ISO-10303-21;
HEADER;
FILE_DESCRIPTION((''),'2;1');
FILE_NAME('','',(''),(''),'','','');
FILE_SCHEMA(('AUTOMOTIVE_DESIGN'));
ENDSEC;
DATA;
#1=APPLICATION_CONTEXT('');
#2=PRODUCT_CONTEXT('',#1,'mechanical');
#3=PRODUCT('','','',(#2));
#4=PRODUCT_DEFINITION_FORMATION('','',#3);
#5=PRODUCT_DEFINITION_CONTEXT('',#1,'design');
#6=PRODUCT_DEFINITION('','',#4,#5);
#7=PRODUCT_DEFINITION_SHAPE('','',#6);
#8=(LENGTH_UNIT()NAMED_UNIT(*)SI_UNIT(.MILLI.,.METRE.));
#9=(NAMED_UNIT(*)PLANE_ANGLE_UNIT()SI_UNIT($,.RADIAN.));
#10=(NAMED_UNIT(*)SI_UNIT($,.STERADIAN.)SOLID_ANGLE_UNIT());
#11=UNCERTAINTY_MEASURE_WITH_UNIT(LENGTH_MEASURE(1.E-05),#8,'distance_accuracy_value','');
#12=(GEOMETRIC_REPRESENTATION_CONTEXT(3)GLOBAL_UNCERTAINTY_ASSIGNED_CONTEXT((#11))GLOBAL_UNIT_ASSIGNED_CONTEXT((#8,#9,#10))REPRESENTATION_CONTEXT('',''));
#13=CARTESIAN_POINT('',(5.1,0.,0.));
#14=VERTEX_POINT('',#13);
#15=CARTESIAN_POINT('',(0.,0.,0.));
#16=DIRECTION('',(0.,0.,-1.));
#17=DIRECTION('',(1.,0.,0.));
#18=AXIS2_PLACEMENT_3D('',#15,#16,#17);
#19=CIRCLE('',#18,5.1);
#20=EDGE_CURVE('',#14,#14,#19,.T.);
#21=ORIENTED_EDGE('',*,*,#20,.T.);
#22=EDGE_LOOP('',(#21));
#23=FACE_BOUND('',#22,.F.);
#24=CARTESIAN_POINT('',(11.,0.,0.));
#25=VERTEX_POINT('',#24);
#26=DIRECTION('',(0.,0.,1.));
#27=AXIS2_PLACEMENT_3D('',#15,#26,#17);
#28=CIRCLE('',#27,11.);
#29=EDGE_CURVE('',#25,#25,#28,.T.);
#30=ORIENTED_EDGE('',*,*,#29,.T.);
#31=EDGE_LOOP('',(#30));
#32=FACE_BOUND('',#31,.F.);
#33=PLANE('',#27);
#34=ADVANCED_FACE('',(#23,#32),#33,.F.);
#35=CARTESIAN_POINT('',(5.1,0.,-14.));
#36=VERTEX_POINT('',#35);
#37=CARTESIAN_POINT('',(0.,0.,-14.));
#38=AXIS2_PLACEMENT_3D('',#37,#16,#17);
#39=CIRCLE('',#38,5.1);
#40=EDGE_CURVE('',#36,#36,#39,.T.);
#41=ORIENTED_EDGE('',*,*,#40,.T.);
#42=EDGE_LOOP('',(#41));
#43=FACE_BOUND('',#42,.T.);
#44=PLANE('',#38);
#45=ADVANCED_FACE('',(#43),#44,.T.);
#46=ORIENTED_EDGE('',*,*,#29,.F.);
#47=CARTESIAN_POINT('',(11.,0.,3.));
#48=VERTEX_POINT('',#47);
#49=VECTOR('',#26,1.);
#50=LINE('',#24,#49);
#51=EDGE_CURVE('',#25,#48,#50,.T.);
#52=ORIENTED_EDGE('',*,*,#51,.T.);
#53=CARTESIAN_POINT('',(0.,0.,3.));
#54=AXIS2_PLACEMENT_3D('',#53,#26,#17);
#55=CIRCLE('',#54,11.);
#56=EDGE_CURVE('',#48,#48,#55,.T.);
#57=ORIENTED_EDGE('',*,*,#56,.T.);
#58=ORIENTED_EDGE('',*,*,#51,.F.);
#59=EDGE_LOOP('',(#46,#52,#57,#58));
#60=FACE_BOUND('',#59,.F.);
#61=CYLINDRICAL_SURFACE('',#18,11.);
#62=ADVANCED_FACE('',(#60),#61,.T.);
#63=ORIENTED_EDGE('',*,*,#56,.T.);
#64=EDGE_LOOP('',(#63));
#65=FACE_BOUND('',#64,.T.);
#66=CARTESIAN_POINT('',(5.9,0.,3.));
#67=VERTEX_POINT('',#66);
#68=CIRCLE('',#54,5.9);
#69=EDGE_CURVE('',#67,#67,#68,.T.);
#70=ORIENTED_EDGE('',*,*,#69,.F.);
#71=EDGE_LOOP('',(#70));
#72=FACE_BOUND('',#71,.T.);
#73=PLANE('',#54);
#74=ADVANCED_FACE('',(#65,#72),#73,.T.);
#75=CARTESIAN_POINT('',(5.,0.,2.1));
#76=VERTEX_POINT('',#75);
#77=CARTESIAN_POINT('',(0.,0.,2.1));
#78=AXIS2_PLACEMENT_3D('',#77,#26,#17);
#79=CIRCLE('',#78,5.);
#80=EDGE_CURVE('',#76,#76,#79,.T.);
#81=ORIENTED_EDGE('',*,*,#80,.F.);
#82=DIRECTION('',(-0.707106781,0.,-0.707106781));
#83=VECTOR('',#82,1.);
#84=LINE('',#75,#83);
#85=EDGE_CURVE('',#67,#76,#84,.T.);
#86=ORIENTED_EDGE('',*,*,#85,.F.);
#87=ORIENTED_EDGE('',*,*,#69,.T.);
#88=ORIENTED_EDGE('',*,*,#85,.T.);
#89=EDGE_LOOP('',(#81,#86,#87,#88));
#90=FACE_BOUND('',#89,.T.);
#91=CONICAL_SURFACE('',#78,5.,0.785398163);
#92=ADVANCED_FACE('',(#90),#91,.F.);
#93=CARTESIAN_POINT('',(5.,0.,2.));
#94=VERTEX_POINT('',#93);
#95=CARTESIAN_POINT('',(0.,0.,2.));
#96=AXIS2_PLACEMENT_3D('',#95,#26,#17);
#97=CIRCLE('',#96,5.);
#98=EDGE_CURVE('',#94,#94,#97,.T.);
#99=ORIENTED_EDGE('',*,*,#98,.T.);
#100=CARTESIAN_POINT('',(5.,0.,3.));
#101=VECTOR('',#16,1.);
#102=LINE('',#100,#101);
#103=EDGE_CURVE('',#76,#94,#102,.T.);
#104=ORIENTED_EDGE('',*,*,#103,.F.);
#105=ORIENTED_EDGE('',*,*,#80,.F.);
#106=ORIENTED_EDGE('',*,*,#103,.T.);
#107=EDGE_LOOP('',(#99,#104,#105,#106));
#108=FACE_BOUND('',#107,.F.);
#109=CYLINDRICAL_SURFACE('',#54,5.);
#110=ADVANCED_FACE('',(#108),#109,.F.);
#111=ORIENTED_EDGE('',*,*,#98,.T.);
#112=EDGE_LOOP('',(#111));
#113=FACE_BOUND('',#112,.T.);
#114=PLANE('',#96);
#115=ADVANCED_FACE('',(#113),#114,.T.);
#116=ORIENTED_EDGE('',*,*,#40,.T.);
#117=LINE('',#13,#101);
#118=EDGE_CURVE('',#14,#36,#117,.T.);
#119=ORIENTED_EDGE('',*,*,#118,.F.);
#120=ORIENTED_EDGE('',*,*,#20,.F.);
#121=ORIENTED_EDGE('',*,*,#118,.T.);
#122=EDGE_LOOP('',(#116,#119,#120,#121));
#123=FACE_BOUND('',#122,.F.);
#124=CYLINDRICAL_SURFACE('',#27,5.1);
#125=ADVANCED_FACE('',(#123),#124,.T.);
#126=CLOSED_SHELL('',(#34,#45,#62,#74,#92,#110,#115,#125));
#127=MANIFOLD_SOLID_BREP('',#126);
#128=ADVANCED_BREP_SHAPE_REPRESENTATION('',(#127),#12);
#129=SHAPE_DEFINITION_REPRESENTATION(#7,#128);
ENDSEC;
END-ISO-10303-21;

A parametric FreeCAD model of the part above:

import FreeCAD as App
import Part
import Sketcher
from FreeCAD import Vector


def edges_at(feature, points):
    """Names of the edges that pass closest to the given points."""
    edges = feature.Shape.Edges
    near = lambda p: min(range(len(edges)), key=lambda i: edges[i].distToShape(Part.Vertex(*p))[0])
    return sorted({f"Edge{near(p) + 1}" for p in points})

doc = App.newDocument("Part")
body = doc.addObject("PartDesign::Body", "Body")

sketch1 = body.newObject("Sketcher::SketchObject", "Sketch")
sketch1.AttachmentSupport = (doc.getObject("XY_Plane"), [""])
sketch1.MapMode = "FlatFace"
sketch1.addGeometry(Part.Circle(Vector(0, 0, 0), Vector(0, 0, 1), 11), False)
sketch1.addConstraint([
    Sketcher.Constraint("Coincident", 0, 3, -1, 1),
    Sketcher.Constraint("Diameter", 0, 22.0),
])
pad1 = body.newObject("PartDesign::Pad", "Pad")
pad1.Profile = sketch1
pad1.Length = 3

sketch2 = body.newObject("Sketcher::SketchObject", "Sketch001")
sketch2.AttachmentSupport = (doc.getObject("XY_Plane"), [""])
sketch2.MapMode = "FlatFace"
sketch2.AttachmentOffset = App.Placement(Vector(0, 0, 3), App.Rotation())
sketch2.addGeometry(Part.Circle(Vector(0, 0, 0), Vector(0, 0, 1), 5), False)
sketch2.addConstraint([
    Sketcher.Constraint("Coincident", 0, 3, -1, 1),
    Sketcher.Constraint("Diameter", 0, 10.0),
])
pocket1 = body.newObject("PartDesign::Pocket", "Pocket")
pocket1.Profile = sketch2
pocket1.Length = 1

sketch3 = body.newObject("Sketcher::SketchObject", "Sketch002")
sketch3.AttachmentSupport = (doc.getObject("XY_Plane"), [""])
sketch3.MapMode = "FlatFace"
sketch3.addGeometry(Part.Circle(Vector(0, 0, 0), Vector(0, 0, 1), 5), False)
sketch3.addConstraint([
    Sketcher.Constraint("Coincident", 0, 3, -1, 1),
    Sketcher.Constraint("Diameter", 0, 10.2),
])
pad2 = body.newObject("PartDesign::Pad", "Pad001")
pad2.Profile = sketch3
pad2.Length = 14
pad2.Reversed = True
doc.recompute()

chamfer = body.newObject("PartDesign::Chamfer", "Chamfer")
chamfer.Base = (pad2, edges_at(pad2, [(-5, 0, 3)]))
chamfer.Size = 0.9

doc.recompute()
